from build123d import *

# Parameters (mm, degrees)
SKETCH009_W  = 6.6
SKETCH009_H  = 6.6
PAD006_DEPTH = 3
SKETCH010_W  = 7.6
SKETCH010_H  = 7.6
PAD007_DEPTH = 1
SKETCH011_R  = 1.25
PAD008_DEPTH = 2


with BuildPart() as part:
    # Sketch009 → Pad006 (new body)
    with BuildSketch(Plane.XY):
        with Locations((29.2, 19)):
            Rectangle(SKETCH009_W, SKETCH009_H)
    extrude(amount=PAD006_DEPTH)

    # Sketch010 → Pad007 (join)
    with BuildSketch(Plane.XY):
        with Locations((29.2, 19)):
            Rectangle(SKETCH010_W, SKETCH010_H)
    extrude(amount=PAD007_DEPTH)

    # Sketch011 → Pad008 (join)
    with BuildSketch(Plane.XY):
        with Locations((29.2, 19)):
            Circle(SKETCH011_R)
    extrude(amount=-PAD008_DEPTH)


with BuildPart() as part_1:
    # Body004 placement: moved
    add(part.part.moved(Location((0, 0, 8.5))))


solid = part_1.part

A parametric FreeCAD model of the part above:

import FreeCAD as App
import Part
import Sketcher

V = App.Vector

doc = App.newDocument("Part")
body = doc.addObject("PartDesign::Body", "Body")

sketch1 = body.newObject("Sketcher::SketchObject", "Sketch")
sketch1.AttachmentSupport = (doc.getObject("XY_Plane"), [""])
sketch1.MapMode = "FlatFace"
sketch1.addGeometry([
    Part.LineSegment(V(25.9, 22.3, 0), V(25.9, 15.7, 0)),
    Part.LineSegment(V(25.9, 15.7, 0), V(32.5, 15.7, 0)),
    Part.LineSegment(V(32.5, 15.7, 0), V(32.5, 22.3, 0)),
    Part.LineSegment(V(32.5, 22.3, 0), V(25.9, 22.3, 0)),
], False)
sketch1.addConstraint([
    Sketcher.Constraint("Coincident", 0, 2, 1, 1),
    Sketcher.Constraint("Coincident", 1, 2, 2, 1),
    Sketcher.Constraint("Coincident", 2, 2, 3, 1),
    Sketcher.Constraint("Coincident", 3, 2, 0, 1),
    Sketcher.Constraint("Vertical", 0),
    Sketcher.Constraint("Horizontal", 1),
    Sketcher.Constraint("Vertical", 2),
    Sketcher.Constraint("Horizontal", 3),
    Sketcher.Constraint("Equal", 3, 0),
    Sketcher.Constraint("DistanceX", 1, 1, 1, 2, 6.6),
    Sketcher.Constraint("DistanceX", -1, 1, 0, 2, 25.9),
    Sketcher.Constraint("DistanceY", -1, 1, 0, 2, 15.7),
])
pad1 = body.newObject("PartDesign::Pad", "Pad")
pad1.Profile = sketch1
pad1.Length = 3

sketch2 = body.newObject("Sketcher::SketchObject", "Sketch001")
sketch2.AttachmentSupport = (doc.getObject("XY_Plane"), [""])
sketch2.MapMode = "FlatFace"
sketch2.addGeometry([
    Part.LineSegment(V(25.4, 22.8, 0), V(25.4, 15.2, 0)),
    Part.LineSegment(V(25.4, 15.2, 0), V(33, 15.2, 0)),
    Part.LineSegment(V(33, 15.2, 0), V(33, 22.8, 0)),
    Part.LineSegment(V(33, 22.8, 0), V(25.4, 22.8, 0)),
], False)
sketch2.addConstraint([
    Sketcher.Constraint("Coincident", 0, 2, 1, 1),
    Sketcher.Constraint("Coincident", 1, 2, 2, 1),
    Sketcher.Constraint("Coincident", 2, 2, 3, 1),
    Sketcher.Constraint("Coincident", 3, 2, 0, 1),
    Sketcher.Constraint("Vertical", 0),
    Sketcher.Constraint("Horizontal", 1),
    Sketcher.Constraint("Vertical", 2),
    Sketcher.Constraint("Horizontal", 3),
    Sketcher.Constraint("Equal", 3, 0),
    Sketcher.Constraint("DistanceX", 1, 1, 1, 2, 7.6),
    Sketcher.Constraint("DistanceX", -1, 1, 1, 2, 33.0),
    Sketcher.Constraint("DistanceY", -1, 1, 0, 2, 15.2),
])
pad2 = body.newObject("PartDesign::Pad", "Pad001")
pad2.Profile = sketch2
pad2.Length = 1

sketch3 = body.newObject("Sketcher::SketchObject", "Sketch002")
sketch3.AttachmentSupport = (doc.getObject("XY_Plane"), [""])
sketch3.MapMode = "FlatFace"
sketch3.addGeometry(Part.Circle(V(29.2, 19, 0), V(0, 0, 1), 1.25), False)
sketch3.addConstraint([
    Sketcher.Constraint("Diameter", 0, 2.5),
    Sketcher.Constraint("DistanceY", -1, 1, 0, 3, 19.0),
    Sketcher.Constraint("DistanceX", -1, 1, 0, 3, 29.2),
])
pad3 = body.newObject("PartDesign::Pad", "Pad002")
pad3.Profile = sketch3
pad3.Length = 2
pad3.Reversed = True
body2 = doc.addObject("PartDesign::Body", "Body001")
doc.recompute()

body.Placement = App.Placement(V(0, 0, 8.5), App.Rotation(V(0, 0, 1), 0))
boolean = body2.newObject("PartDesign::Boolean", "Boolean")
boolean.Type = "Fuse"
boolean.addObjects([body])

doc.recompute()
